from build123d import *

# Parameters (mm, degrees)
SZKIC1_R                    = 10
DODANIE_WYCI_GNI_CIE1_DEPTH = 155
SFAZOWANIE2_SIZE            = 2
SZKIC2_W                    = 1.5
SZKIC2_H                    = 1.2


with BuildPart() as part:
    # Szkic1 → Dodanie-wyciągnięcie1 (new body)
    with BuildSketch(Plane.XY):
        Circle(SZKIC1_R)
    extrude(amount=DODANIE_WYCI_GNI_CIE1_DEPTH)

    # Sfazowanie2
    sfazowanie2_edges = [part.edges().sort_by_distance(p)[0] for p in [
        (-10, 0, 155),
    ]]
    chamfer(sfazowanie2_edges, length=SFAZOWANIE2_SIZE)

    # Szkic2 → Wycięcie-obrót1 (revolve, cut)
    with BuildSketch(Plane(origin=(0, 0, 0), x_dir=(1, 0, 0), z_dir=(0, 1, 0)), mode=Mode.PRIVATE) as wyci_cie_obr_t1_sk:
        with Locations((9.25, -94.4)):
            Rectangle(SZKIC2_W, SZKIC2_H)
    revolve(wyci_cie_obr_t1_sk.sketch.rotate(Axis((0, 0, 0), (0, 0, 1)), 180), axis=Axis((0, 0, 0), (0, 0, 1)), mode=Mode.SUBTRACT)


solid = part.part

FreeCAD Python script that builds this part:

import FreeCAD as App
import Part
import Sketcher

V = App.Vector


def edges_at(feature, points):
    """Names of the edges that pass closest to the given points."""
    edges = feature.Shape.Edges
    near = lambda p: min(range(len(edges)), key=lambda i: edges[i].distToShape(Part.Vertex(*p))[0])
    return sorted({f"Edge{near(p) + 1}" for p in points})


def add_polygon(sketch, points):
    """Adds a closed chain of lines whose ends are joined by coincident constraints."""
    first, n = sketch.GeometryCount, len(points)
    for a, b in zip(points, points[1:] + points[:1]):
        sketch.addGeometry(Part.LineSegment(App.Vector(*a, 0), App.Vector(*b, 0)), False)
    for i in range(n):
        sketch.addConstraint(Sketcher.Constraint("Coincident", first + i, 2, first + (i + 1) % n, 1))

doc = App.newDocument("Part")
body = doc.addObject("PartDesign::Body", "Body")

sketch1 = body.newObject("Sketcher::SketchObject", "Sketch")
sketch1.AttachmentSupport = (doc.getObject("XY_Plane"), [""])
sketch1.MapMode = "FlatFace"
sketch1.addGeometry(Part.Circle(V(0, 0, 0), V(0, 0, 1), 10), False)
sketch1.addConstraint([
    Sketcher.Constraint("Coincident", 0, 3, -1, 1),
    Sketcher.Constraint("Diameter", 0, 20.0),
])
pad1 = body.newObject("PartDesign::Pad", "Pad")
pad1.Profile = sketch1
pad1.Length = 155
doc.recompute()

chamfer = body.newObject("PartDesign::Chamfer", "Chamfer")
chamfer.Base = (pad1, edges_at(pad1, [(-10, 0, 155)]))
chamfer.Size = 2

sketch2 = body.newObject("Sketcher::SketchObject", "Sketch001")
sketch2.AttachmentSupport = (doc.getObject("XZ_Plane"), [""])
sketch2.MapMode = "FlatFace"
add_polygon(sketch2, [(8.5, 93.8), (8.5, 95), (10, 95), (10, 93.8)])
sketch2.addConstraint([
    Sketcher.Constraint("Vertical", 0),
    Sketcher.Constraint("Horizontal", 1),
    Sketcher.Constraint("Vertical", 2),
    Sketcher.Constraint("Horizontal", 3),
    Sketcher.Constraint("DistanceX", 1, 1, 1, 2, 1.5),
    Sketcher.Constraint("DistanceY", 0, 1, 0, 2, 1.2),
    Sketcher.Constraint("DistanceY", -1, 1, 0, 2, 95.0),
    Sketcher.Constraint("DistanceX", -1, 1, 1, 2, 10.0),
])
groove = body.newObject("PartDesign::Groove", "Groove")
groove.Profile = sketch2
groove.ReferenceAxis = (sketch2, ["V_Axis"])
groove.Angle = 360

doc.recompute()
